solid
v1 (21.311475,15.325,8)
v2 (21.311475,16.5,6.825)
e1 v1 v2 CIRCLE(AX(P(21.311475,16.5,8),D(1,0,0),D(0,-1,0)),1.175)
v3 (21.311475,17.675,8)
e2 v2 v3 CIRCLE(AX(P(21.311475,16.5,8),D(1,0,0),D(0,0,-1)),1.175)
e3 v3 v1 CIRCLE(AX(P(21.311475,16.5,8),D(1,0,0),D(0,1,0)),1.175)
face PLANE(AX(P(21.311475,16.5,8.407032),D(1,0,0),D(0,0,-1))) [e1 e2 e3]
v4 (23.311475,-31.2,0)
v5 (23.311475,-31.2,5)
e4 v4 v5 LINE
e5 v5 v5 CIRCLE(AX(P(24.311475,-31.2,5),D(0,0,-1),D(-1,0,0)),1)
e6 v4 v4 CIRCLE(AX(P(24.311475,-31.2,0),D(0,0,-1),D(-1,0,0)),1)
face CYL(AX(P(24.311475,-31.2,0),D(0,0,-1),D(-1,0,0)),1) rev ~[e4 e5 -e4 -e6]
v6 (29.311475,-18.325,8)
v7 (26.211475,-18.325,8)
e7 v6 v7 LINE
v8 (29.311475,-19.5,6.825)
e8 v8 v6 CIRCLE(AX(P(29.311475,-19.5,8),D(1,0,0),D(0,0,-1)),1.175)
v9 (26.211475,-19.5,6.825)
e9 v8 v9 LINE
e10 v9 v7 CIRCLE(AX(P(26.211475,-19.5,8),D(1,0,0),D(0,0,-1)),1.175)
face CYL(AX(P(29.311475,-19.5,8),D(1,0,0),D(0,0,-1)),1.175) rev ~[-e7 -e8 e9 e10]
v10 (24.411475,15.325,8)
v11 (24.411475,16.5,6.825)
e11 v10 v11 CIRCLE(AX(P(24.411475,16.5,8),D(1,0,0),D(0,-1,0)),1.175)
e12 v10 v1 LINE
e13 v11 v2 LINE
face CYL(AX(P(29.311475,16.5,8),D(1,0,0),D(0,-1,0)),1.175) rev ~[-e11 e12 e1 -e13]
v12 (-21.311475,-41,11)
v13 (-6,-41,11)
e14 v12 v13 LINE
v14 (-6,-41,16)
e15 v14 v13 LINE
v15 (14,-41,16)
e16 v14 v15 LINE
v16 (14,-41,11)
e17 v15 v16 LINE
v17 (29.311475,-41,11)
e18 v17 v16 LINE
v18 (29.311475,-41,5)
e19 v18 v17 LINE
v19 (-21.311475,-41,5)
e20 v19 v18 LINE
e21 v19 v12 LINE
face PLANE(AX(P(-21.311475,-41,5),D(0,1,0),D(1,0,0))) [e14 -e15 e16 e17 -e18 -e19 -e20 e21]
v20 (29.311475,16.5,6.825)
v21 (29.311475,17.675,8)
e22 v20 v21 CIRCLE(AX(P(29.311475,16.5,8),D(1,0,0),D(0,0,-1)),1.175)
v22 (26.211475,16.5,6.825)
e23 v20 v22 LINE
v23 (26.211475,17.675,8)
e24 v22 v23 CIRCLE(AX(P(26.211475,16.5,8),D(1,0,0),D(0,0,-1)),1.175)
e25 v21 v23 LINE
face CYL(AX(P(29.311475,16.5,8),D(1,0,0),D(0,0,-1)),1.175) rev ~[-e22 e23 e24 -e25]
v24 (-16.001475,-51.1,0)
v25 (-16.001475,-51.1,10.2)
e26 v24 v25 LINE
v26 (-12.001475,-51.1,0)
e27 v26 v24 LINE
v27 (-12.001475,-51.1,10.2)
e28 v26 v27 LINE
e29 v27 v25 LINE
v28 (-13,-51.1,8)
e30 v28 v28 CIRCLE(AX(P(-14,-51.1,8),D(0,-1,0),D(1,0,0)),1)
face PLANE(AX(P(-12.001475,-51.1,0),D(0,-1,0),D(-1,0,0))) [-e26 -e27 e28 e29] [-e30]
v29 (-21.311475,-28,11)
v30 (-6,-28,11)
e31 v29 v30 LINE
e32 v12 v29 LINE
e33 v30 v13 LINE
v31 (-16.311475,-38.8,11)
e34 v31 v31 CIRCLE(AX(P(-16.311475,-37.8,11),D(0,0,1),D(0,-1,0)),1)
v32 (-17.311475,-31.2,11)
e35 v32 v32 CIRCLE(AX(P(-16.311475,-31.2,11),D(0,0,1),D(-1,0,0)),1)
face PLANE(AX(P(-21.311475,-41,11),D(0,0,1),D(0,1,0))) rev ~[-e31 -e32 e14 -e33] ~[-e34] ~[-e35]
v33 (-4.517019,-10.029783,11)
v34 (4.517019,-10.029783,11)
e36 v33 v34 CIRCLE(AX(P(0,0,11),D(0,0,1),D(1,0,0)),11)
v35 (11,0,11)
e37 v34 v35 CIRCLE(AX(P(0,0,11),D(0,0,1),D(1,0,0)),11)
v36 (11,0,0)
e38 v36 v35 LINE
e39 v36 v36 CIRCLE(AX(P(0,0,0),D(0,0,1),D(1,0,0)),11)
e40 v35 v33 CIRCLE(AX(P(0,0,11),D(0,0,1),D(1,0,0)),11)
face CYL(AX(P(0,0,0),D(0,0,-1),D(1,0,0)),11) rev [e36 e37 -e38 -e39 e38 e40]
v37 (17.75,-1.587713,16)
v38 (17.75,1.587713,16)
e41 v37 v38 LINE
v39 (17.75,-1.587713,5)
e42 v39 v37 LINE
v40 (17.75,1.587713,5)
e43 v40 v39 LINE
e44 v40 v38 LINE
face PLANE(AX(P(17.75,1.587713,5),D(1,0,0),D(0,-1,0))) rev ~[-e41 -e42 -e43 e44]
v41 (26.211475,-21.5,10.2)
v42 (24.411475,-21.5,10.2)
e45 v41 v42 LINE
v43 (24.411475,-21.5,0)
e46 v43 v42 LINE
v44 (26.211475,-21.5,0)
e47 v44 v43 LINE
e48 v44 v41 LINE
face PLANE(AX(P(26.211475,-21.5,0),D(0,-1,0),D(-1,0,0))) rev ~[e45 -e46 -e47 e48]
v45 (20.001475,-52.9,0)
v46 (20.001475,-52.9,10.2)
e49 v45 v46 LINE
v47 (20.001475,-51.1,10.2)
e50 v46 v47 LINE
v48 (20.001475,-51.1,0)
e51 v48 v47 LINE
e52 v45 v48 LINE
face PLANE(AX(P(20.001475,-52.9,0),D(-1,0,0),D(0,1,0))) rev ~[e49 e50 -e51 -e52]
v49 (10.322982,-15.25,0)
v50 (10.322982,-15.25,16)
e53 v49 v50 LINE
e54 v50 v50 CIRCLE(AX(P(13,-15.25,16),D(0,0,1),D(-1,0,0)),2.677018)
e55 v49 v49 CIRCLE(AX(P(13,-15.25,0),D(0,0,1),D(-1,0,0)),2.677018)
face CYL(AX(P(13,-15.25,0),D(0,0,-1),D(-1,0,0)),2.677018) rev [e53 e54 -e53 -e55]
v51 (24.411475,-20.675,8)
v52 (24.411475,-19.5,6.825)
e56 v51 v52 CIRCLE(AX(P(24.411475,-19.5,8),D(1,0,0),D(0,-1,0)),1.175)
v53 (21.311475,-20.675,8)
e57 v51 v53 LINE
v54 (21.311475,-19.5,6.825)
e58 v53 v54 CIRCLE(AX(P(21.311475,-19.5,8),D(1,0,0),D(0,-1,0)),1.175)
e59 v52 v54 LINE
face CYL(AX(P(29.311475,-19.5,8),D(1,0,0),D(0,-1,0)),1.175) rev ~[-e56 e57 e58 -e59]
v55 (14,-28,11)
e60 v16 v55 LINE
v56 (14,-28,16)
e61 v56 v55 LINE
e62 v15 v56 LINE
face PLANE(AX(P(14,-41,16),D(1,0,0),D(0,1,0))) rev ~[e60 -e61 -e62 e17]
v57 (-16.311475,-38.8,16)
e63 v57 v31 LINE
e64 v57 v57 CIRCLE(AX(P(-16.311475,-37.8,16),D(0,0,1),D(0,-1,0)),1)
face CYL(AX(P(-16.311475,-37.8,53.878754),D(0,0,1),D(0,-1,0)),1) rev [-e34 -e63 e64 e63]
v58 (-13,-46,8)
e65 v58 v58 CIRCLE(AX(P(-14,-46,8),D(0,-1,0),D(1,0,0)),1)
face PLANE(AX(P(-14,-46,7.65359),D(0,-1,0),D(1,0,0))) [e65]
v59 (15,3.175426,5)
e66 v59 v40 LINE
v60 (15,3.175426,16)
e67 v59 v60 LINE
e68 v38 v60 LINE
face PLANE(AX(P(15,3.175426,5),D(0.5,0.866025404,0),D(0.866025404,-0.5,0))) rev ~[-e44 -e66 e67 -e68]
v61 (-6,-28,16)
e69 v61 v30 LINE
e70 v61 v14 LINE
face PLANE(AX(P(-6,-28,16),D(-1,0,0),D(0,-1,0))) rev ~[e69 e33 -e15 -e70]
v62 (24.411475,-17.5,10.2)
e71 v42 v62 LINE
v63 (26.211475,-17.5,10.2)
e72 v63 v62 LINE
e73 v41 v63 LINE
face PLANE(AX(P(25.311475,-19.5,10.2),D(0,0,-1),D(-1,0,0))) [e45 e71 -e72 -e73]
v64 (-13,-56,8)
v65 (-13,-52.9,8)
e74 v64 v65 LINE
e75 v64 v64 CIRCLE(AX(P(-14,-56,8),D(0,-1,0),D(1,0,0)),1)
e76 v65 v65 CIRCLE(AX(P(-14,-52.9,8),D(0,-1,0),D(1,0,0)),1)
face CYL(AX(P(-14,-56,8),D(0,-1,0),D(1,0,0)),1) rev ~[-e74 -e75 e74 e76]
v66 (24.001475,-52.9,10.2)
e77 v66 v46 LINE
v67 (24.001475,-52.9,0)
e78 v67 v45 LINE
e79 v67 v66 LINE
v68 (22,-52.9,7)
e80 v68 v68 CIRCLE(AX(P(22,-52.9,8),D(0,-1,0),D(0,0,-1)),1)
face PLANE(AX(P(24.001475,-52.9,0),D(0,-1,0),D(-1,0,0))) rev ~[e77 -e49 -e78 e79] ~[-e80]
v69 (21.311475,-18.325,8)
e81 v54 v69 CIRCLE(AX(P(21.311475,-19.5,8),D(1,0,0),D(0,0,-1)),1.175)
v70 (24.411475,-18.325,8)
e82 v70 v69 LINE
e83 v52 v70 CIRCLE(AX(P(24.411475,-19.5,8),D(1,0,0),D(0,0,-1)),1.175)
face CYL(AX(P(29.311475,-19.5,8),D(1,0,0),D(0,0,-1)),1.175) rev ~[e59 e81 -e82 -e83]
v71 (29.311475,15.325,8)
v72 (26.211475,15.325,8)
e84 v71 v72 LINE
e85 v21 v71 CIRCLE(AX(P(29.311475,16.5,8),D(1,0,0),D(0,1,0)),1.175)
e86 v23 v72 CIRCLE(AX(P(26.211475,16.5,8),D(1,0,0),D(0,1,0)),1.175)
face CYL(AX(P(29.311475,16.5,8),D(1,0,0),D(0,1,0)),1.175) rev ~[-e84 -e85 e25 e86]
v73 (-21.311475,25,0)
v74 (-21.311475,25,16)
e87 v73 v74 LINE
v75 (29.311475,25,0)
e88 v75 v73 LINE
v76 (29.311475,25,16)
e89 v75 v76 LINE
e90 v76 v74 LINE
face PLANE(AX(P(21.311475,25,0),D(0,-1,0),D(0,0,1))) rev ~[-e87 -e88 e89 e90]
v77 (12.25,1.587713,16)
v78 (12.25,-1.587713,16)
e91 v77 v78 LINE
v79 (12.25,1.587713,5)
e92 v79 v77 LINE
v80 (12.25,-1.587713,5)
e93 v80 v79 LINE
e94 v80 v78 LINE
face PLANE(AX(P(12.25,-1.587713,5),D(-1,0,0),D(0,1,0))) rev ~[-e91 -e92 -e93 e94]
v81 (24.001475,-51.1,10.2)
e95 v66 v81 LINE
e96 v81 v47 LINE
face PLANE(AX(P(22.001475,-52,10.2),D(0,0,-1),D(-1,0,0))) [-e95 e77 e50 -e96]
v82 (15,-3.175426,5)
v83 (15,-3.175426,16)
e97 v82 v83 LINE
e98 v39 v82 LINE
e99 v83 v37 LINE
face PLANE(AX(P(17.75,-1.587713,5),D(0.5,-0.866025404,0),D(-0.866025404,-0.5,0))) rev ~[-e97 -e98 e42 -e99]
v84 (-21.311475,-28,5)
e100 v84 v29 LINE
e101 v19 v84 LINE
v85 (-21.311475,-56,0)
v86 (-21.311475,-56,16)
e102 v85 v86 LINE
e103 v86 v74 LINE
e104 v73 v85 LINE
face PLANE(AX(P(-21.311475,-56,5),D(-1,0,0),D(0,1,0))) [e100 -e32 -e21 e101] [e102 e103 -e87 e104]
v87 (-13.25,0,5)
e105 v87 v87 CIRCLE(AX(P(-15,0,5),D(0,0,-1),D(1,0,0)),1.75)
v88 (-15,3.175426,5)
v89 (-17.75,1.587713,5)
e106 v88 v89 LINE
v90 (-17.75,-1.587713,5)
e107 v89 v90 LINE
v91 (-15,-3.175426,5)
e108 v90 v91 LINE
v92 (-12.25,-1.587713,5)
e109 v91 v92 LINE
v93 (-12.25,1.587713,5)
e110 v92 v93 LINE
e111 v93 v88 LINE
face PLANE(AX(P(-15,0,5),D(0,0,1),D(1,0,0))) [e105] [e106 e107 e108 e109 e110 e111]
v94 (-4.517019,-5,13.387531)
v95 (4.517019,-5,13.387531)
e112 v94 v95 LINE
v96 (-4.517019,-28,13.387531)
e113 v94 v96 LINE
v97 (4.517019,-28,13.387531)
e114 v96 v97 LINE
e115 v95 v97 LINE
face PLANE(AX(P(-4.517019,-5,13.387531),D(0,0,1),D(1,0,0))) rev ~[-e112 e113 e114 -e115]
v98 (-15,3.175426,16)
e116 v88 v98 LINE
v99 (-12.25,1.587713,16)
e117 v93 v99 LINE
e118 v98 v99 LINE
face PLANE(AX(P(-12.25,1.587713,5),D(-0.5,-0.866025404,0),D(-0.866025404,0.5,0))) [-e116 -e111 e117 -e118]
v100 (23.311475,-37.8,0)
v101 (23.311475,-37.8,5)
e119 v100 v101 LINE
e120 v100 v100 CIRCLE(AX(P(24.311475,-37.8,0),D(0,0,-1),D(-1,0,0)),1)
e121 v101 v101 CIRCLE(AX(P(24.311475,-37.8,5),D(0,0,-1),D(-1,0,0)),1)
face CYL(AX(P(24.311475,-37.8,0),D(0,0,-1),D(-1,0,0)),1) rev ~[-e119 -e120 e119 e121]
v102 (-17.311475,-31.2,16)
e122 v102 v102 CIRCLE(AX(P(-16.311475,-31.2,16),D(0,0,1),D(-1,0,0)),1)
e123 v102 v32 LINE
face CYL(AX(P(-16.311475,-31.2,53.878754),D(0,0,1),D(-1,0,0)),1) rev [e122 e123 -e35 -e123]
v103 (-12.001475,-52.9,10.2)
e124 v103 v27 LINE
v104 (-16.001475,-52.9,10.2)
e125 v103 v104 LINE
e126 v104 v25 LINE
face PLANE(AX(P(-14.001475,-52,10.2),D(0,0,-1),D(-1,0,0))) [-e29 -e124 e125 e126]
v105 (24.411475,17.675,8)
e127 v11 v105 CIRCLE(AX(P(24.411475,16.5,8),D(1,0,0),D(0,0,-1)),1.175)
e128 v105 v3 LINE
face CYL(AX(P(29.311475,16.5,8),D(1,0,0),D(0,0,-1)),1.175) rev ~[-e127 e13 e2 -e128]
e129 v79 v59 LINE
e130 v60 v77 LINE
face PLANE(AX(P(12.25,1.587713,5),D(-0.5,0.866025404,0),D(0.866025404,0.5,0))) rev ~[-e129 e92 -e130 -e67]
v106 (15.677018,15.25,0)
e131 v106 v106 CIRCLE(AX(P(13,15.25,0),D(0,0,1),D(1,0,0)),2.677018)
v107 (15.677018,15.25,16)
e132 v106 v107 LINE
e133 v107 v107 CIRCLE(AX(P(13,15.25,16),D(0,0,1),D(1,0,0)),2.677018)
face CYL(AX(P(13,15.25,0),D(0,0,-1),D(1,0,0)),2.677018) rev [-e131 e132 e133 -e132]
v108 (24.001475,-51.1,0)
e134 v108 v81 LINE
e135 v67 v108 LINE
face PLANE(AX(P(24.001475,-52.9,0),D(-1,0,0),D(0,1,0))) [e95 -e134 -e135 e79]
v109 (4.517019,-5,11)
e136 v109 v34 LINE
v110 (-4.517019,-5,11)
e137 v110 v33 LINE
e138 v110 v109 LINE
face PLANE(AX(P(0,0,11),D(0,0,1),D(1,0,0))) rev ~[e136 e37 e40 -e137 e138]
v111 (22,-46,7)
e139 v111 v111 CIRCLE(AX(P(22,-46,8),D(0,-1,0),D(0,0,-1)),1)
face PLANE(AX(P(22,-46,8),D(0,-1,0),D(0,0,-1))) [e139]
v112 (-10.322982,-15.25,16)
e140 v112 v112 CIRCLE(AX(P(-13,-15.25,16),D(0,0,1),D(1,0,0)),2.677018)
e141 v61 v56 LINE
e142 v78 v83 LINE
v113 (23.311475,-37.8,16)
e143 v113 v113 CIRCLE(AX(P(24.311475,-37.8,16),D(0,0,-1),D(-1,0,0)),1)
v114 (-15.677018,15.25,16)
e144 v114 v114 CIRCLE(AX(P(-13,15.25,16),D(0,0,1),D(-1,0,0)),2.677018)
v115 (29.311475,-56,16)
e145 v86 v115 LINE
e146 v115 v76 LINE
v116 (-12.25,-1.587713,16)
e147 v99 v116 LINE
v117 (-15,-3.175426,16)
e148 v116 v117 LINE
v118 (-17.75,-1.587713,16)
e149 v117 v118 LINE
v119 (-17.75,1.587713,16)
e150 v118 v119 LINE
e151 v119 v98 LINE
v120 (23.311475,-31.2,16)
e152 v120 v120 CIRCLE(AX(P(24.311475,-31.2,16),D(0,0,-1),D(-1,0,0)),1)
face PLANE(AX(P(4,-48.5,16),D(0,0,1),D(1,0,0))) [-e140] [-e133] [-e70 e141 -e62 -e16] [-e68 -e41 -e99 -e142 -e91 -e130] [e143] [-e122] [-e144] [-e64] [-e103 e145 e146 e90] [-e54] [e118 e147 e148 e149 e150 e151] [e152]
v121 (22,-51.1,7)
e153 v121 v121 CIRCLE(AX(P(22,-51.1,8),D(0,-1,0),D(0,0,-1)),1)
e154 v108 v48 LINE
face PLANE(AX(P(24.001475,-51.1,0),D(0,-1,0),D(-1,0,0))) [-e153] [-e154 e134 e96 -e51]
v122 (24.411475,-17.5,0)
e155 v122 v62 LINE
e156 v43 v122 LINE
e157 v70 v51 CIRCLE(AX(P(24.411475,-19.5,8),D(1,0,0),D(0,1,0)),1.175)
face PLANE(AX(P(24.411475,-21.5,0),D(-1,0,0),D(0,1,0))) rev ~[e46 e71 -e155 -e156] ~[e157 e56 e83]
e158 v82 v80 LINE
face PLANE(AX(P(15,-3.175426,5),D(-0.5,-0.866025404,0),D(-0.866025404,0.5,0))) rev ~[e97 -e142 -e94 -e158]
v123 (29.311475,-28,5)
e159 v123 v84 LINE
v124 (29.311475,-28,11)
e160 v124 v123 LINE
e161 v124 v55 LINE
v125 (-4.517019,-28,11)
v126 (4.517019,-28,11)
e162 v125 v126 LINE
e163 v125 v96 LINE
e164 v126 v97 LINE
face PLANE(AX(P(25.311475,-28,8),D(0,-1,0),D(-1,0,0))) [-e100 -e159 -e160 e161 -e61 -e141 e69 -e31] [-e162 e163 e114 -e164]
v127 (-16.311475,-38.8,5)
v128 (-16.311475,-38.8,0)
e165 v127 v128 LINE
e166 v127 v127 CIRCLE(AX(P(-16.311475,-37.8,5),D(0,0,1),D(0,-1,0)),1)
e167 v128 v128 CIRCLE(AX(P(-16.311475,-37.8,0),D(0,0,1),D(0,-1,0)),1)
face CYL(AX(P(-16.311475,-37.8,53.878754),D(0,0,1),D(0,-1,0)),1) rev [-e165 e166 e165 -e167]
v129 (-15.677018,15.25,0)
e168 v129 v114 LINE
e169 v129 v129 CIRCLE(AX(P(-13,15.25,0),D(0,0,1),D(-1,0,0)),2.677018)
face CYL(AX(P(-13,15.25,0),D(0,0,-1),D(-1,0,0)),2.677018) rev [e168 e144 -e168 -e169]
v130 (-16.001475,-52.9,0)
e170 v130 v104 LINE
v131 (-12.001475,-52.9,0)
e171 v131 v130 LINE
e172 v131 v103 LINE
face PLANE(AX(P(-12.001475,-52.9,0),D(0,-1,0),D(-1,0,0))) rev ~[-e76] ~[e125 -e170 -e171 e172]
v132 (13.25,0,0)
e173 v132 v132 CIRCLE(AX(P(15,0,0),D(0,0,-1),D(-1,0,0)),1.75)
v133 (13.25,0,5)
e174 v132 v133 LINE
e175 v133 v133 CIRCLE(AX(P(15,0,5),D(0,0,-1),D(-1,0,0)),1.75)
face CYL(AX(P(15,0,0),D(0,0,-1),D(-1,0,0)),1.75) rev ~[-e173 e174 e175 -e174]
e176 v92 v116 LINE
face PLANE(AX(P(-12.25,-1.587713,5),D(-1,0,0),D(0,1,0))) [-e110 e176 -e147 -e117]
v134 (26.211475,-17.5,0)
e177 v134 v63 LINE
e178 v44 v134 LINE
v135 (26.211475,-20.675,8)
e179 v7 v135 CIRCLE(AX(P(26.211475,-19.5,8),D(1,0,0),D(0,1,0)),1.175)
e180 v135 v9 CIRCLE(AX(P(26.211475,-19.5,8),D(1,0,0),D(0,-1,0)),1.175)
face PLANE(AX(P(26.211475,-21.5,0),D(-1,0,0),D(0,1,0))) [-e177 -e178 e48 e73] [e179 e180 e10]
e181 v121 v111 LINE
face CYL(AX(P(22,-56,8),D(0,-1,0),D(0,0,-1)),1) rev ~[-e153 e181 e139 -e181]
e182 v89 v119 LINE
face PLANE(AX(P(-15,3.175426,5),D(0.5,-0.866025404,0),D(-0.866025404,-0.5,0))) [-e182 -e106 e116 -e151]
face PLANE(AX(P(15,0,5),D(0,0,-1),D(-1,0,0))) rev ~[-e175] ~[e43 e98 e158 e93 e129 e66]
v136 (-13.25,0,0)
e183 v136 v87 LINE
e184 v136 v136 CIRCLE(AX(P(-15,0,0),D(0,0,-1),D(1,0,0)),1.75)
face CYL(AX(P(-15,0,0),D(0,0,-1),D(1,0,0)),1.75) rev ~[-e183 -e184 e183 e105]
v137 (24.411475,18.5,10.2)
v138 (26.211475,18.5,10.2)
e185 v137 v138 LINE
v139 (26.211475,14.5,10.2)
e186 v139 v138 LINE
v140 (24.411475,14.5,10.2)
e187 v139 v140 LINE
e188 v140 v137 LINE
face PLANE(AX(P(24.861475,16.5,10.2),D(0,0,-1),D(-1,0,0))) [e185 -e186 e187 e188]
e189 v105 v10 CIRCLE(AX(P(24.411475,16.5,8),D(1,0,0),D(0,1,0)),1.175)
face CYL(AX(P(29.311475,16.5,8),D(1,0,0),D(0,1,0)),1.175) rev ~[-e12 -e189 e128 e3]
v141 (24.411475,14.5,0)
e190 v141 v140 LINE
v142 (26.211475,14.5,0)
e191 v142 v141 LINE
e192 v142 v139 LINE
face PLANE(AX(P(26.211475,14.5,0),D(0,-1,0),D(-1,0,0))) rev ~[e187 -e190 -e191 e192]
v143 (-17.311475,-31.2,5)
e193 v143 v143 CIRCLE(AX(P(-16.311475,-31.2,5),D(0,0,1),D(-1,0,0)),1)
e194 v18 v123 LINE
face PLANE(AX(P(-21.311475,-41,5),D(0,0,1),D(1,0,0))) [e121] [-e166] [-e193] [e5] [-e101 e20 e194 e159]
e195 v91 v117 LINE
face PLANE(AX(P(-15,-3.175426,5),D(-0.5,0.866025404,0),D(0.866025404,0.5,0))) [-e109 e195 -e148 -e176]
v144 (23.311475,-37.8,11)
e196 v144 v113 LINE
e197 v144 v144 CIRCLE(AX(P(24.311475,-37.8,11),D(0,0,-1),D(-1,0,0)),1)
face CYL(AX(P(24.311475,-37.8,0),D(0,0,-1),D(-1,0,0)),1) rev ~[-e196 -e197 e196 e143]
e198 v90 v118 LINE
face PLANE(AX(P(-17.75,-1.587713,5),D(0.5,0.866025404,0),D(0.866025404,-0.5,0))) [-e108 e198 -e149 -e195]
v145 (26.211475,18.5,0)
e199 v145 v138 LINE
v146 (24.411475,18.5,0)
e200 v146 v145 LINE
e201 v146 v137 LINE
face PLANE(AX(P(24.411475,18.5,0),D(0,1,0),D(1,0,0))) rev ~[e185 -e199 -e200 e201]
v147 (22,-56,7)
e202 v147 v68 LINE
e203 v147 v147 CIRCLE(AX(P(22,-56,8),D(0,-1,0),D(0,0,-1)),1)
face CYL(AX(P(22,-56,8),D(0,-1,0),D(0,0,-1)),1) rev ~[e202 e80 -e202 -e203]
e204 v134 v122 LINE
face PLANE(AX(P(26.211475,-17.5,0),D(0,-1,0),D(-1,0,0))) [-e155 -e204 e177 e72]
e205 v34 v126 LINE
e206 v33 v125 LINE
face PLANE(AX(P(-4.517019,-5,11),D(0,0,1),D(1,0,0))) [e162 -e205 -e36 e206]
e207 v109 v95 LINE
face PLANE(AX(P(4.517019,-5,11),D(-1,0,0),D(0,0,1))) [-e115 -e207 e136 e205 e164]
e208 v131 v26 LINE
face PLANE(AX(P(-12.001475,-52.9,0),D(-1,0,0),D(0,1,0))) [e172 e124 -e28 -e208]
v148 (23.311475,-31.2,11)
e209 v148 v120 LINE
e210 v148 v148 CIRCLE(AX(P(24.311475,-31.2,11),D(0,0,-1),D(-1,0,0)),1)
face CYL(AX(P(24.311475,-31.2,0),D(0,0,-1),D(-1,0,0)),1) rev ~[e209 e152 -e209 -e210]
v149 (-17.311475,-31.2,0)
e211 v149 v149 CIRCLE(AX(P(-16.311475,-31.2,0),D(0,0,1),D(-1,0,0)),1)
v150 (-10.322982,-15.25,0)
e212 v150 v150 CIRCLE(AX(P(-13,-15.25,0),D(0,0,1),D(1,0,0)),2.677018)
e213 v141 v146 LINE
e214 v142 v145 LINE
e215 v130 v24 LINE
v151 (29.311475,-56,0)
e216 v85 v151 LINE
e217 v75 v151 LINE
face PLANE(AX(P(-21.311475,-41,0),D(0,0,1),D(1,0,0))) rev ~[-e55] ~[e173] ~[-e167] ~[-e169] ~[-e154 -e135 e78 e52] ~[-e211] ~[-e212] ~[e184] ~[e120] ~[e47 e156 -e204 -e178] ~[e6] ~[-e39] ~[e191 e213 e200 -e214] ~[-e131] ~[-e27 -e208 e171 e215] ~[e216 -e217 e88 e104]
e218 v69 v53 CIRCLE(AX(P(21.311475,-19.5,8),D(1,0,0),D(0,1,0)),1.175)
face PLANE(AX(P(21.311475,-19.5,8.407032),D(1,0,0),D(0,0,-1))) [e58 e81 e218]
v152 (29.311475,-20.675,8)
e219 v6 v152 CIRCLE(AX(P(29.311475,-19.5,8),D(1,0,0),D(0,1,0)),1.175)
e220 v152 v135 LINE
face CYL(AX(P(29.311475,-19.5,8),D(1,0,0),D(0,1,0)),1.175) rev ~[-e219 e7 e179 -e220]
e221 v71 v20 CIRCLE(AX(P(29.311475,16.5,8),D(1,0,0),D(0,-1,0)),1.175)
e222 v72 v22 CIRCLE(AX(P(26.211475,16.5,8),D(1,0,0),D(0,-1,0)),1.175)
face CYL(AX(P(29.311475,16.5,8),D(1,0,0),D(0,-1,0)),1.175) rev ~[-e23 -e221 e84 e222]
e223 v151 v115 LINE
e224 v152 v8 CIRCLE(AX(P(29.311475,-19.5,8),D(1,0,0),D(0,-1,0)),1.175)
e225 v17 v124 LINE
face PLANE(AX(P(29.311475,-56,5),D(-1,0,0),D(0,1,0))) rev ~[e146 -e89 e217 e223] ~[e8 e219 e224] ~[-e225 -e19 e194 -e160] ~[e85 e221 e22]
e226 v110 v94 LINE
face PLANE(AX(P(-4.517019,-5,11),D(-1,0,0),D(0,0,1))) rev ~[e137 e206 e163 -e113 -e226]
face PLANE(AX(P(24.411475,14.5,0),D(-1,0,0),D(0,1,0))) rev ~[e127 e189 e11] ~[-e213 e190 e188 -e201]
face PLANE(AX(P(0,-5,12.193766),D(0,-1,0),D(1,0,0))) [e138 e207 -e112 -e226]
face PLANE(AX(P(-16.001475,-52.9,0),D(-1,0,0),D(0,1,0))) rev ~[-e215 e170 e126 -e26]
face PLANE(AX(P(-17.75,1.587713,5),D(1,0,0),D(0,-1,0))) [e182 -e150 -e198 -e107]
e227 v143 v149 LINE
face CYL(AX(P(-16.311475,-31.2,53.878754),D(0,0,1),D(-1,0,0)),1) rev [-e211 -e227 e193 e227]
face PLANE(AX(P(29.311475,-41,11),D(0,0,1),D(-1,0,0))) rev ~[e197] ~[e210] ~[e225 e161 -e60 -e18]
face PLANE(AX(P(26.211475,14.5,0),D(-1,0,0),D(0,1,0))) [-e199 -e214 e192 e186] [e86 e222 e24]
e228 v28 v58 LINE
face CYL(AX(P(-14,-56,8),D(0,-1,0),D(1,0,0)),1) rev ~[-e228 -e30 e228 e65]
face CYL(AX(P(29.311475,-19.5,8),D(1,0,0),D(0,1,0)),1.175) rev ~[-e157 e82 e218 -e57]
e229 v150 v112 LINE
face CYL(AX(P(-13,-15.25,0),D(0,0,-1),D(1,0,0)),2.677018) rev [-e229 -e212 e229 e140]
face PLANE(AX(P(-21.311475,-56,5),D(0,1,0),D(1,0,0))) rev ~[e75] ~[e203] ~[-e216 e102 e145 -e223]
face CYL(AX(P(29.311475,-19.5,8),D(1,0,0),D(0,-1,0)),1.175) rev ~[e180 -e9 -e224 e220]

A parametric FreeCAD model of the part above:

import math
import FreeCAD as App
import Part
import Sketcher

V = App.Vector
Q = App.Units.Quantity


def add_polygon(sketch, points):
    """Adds a closed chain of lines whose ends are joined by coincident constraints."""
    first, n = sketch.GeometryCount, len(points)
    for a, b in zip(points, points[1:] + points[:1]):
        sketch.addGeometry(Part.LineSegment(App.Vector(*a, 0), App.Vector(*b, 0)), False)
    for i in range(n):
        sketch.addConstraint(Sketcher.Constraint("Coincident", first + i, 2, first + (i + 1) % n, 1))

doc = App.newDocument("Part")
body = doc.addObject("PartDesign::Body", "Body")

sketch1 = body.newObject("Sketcher::SketchObject", "Sketch")
sketch1.AttachmentSupport = (doc.getObject("XY_Plane"), [""])
sketch1.MapMode = "FlatFace"
add_polygon(sketch1, [(-21.311475, 25), (-21.311475, -25), (21.311475, -25), (21.311475, 25)])
sketch1.addGeometry(Part.Circle(V(-13, -15.25, 0), V(0, 0, 1), 2.677018), False)
sketch1.addGeometry(Part.Circle(V(13, -15.25, 0), V(0, 0, 1), 2.677018), False)
sketch1.addGeometry(Part.Circle(V(-13, 15.25, 0), V(0, 0, 1), 2.677018), False)
sketch1.addGeometry(Part.Circle(V(13, 15.25, 0), V(0, 0, 1), 2.677018), False)
sketch1.addConstraint(Sketcher.Constraint("Vertical", 0))
sketch1.addConstraint(Sketcher.Constraint("Horizontal", 1))
sketch1.addConstraint(Sketcher.Constraint("Vertical", 2))
sketch1.addConstraint(Sketcher.Constraint("Horizontal", 3))
sketch1.addConstraint(Sketcher.Constraint("Equal", 4, 5))
sketch1.addConstraint(Sketcher.Constraint("Equal", 5, 6))
sketch1.addConstraint(Sketcher.Constraint("Equal", 6, 7))
sketch1.addConstraint(Sketcher.Constraint("Symmetric", 5, 3, 6, 3, -1, 1))
sketch1.addConstraint(Sketcher.Constraint("Symmetric", 4, 3, 7, 3, -1, 1))
sketch1.addConstraint(Sketcher.Constraint("Symmetric", 0, 2, 2, 2, -1, 1))
sketch1.addConstraint(Sketcher.Constraint("Symmetric", 4, 3, 5, 3, -2))
sketch1.addConstraint(Sketcher.Constraint("DistanceY", 0, 2, 0, 1, Q("50 mm")))
sketch1.addConstraint(Sketcher.Constraint("DistanceX", 4, 3, -1, 1, Q("13 mm")))
sketch1.addConstraint(Sketcher.Constraint("DistanceY", 4, 3, 6, 3, Q("30.5 mm")))
sketch1.addConstraint(Sketcher.Constraint("Diameter", 4, Q("5.354036 mm")))
sketch1.addConstraint(Sketcher.Constraint("DistanceX", 1, 1, 1, 2, Q("42.622951 mm")))
pad1 = body.newObject("PartDesign::Pad", "Pad")
pad1.Profile = sketch1
pad1.Length = 16

sketch2 = body.newObject("Sketcher::SketchObject", "Sketch001")
sketch2.AttachmentSupport = (doc.getObject("XY_Plane"), [""])
sketch2.MapMode = "FlatFace"
sketch2.addGeometry(Part.Circle(V(0, 0, 0), V(0, 0, 1), 11), False)
sketch2.addConstraint(Sketcher.Constraint("Coincident", 0, 3, -1, 1))
sketch2.addConstraint(Sketcher.Constraint("Diameter", 0, Q("22 mm")))
pocket1 = body.newObject("PartDesign::Pocket", "Pocket")
pocket1.Profile = sketch2
pocket1.Length = 11
pocket1.Reversed = True

sketch3 = body.newObject("Sketcher::SketchObject", "Sketch002")
sketch3.AttachmentSupport = (doc.getObject("XY_Plane"), [""])
sketch3.MapMode = "FlatFace"
sketch3.addGeometry(Part.Circle(V(15, 0, 0), V(0, 0, 1), 1.75), False)
sketch3.addGeometry(Part.Circle(V(-15, 0, 0), V(0, 0, 1), 1.75), False)
sketch3.addConstraint(Sketcher.Constraint("Equal", 0, 1))
sketch3.addConstraint(Sketcher.Constraint("Symmetric", 0, 3, 1, 3, -1, 1))
sketch3.addConstraint(Sketcher.Constraint("PointOnObject", 0, 3, -1))
sketch3.addConstraint(Sketcher.Constraint("Diameter", 0, Q("3.5 mm")))
sketch3.addConstraint(Sketcher.Constraint("DistanceX", -1, 1, 0, 3, Q("15 mm")))
pocket2 = body.newObject("PartDesign::Pocket", "Pocket001")
pocket2.Profile = sketch3
pocket2.Length = 10
pocket2.Reversed = True

sketch4 = body.newObject("Sketcher::SketchObject", "Sketch003")
sketch4.AttachmentSupport = (doc.getObject("XY_Plane"), [""])
sketch4.MapMode = "FlatFace"
sketch4.AttachmentOffset = App.Placement(V(0, 0, 5), App.Rotation())
add_polygon(sketch4, [(15, 3.175426), (17.75, 1.587713), (17.75, -1.587713), (15, -3.175426), (12.25, -1.587713), (12.25, 1.587713)])
add_polygon(sketch4, [(-15, 3.175426), (-12.25, 1.587713), (-12.25, -1.587713), (-15, -3.175426), (-17.75, -1.587713), (-17.75, 1.587713)])
sketch4.addConstraint(Sketcher.Constraint("Vertical", 1))
sketch4.addConstraint(Sketcher.Constraint("Vertical", 4))
sketch4.addConstraint(Sketcher.Constraint("Vertical", 7))
sketch4.addConstraint(Sketcher.Constraint("Vertical", 10))
sketch4.addConstraint(Sketcher.Constraint("Symmetric", 3, 2, 6, 2, -1, 1))
sketch4.addConstraint(Sketcher.Constraint("Symmetric", 5, 2, 8, 2, -1, 1))
sketch4.addConstraint(Sketcher.Constraint("Symmetric", 0, 2, 9, 2, -1, 1))
sketch4.addConstraint(Sketcher.Constraint("Symmetric", 2, 2, 11, 2, -1, 1))
sketch4.addConstraint(Sketcher.Constraint("Symmetric", 2, 2, 8, 2, -2))
sketch4.addConstraint(Sketcher.Constraint("Parallel", 0, 3))
sketch4.addConstraint(Sketcher.Constraint("Parallel", 2, 5))
sketch4.addConstraint(Sketcher.Constraint("Parallel", 5, 8))
sketch4.addConstraint(Sketcher.Constraint("Parallel", 8, 11))
sketch4.addConstraint(Sketcher.Constraint("Horizontal", 1, 2, 3, 2))
sketch4.addConstraint(Sketcher.Constraint("Horizontal", 0, 2, 4, 2))
sketch4.addConstraint(Sketcher.Constraint("Angle", 0, Q("-30 deg")))
sketch4.addConstraint(Sketcher.Constraint("DistanceX", -1, 1, 2, 2, Q("15 mm")))
sketch4.addConstraint(Sketcher.Constraint("DistanceX", 3, 2, 1, 2, Q("5.5 mm")))
sketch4.addConstraint(Sketcher.Constraint("DistanceY", 1, 2, 1, 1, Q("3.175426 mm")))
pocket3 = body.newObject("PartDesign::Pocket", "Pocket002")
pocket3.Profile = sketch4
pocket3.Type = "ThroughAll"
pocket3.Reversed = True

sketch5 = body.newObject("Sketcher::SketchObject", "Sketch004")
sketch5.AttachmentSupport = (doc.getObject("XY_Plane"), [""])
sketch5.MapMode = "FlatFace"
add_polygon(sketch5, [(-21.311475, -25), (-21.311475, -41), (21.311475, -41), (21.311475, -25)])
sketch5.addConstraint(Sketcher.Constraint("Vertical", 0))
sketch5.addConstraint(Sketcher.Constraint("Horizontal", 1))
sketch5.addConstraint(Sketcher.Constraint("Vertical", 2))
sketch5.addConstraint(Sketcher.Constraint("Horizontal", 3))
sketch5.addConstraint(Sketcher.Constraint("DistanceY", 0, 2, 0, 1, Q("16 mm")))
sketch5.addConstraint(Sketcher.Constraint("DistanceY", 0, 2, -1, 1, Q("41 mm")))
sketch5.addConstraint(Sketcher.Constraint("DistanceX", 1, 1, 1, 2, Q("42.622951 mm")))
sketch5.addConstraint(Sketcher.Constraint("DistanceX", 0, 2, -1, 1, Q("21.311475 mm")))
pad2 = body.newObject("PartDesign::Pad", "Pad001")
pad2.Profile = sketch5
pad2.Length = 16

sketch6 = body.newObject("Sketcher::SketchObject", "Sketch005")
sketch6.AttachmentSupport = (doc.getObject("YZ_Plane"), [""])
sketch6.MapMode = "FlatFace"
sketch6.AttachmentOffset = App.Placement(V(0, 0, -21.311475), App.Rotation())
add_polygon(sketch6, [(-28, 5), (-41, 5), (-41, 11), (-28, 11)])
sketch6.addConstraint(Sketcher.Constraint("Horizontal", 0))
sketch6.addConstraint(Sketcher.Constraint("Vertical", 1))
sketch6.addConstraint(Sketcher.Constraint("Horizontal", 2))
sketch6.addConstraint(Sketcher.Constraint("Vertical", 3))
sketch6.addConstraint(Sketcher.Constraint("DistanceX", 0, 2, 0, 1, Q("13 mm")))
sketch6.addConstraint(Sketcher.Constraint("DistanceY", 1, 1, 1, 2, Q("6 mm")))
sketch6.addConstraint(Sketcher.Constraint("DistanceX", 0, 2, -1, 1, Q("41 mm")))
sketch6.addConstraint(Sketcher.Constraint("DistanceY", -1, 1, 0, 2, Q("5 mm")))
pocket4 = body.newObject("PartDesign::Pocket", "Pocket003")
pocket4.Profile = sketch6
pocket4.Type = "ThroughAll"
pocket4.Reversed = True

sketch7 = body.newObject("Sketcher::SketchObject", "Sketch006")
sketch7.AttachmentSupport = (doc.getObject("YZ_Plane"), [""])
sketch7.MapMode = "FlatFace"
sketch7.AttachmentOffset = App.Placement(V(0, 0, 21.311475), App.Rotation())
add_polygon(sketch7, [(25, 16), (-28, 16), (-28, 0), (25, 0)])
sketch7.addConstraint(Sketcher.Constraint("Horizontal", 0))
sketch7.addConstraint(Sketcher.Constraint("Vertical", 1))
sketch7.addConstraint(Sketcher.Constraint("Horizontal", 2))
sketch7.addConstraint(Sketcher.Constraint("Vertical", 3))
sketch7.addConstraint(Sketcher.Constraint("PointOnObject", 1, 2, -1))
sketch7.addConstraint(Sketcher.Constraint("DistanceX", 0, 2, 0, 1, Q("53 mm")))
sketch7.addConstraint(Sketcher.Constraint("DistanceY", 1, 2, 1, 1, Q("16 mm")))
sketch7.addConstraint(Sketcher.Constraint("DistanceX", 0, 2, -1, 1, Q("28 mm")))
pad3 = body.newObject("PartDesign::Pad", "Pad002")
pad3.Profile = sketch7
pad3.Length = 8

sketch8 = body.newObject("Sketcher::SketchObject", "Sketch007")
sketch8.AttachmentSupport = (doc.getObject("YZ_Plane"), [""])
sketch8.MapMode = "FlatFace"
sketch8.AttachmentOffset = App.Placement(V(0, 0, 29.311475), App.Rotation())
sketch8.addGeometry(Part.ArcOfCircle(Part.Circle(V(16.5, 8, 0), V(0, 0, 1), 1.175), math.radians(0), math.radians(180)), False)
sketch8.addGeometry(Part.ArcOfCircle(Part.Circle(V(16.5, 8, 0), V(0, 0, 1), 1.175), math.radians(180), math.radians(270)), False)
sketch8.addGeometry(Part.ArcOfCircle(Part.Circle(V(16.5, 8, 0), V(0, 0, 1), 1.175), math.radians(-90), math.radians(0)), False)
sketch8.addGeometry(Part.ArcOfCircle(Part.Circle(V(-19.5, 8, 0), V(0, 0, 1), 1.175), math.radians(0), math.radians(180)), False)
sketch8.addGeometry(Part.ArcOfCircle(Part.Circle(V(-19.5, 8, 0), V(0, 0, 1), 1.175), math.radians(180), math.radians(270)), False)
sketch8.addGeometry(Part.ArcOfCircle(Part.Circle(V(-19.5, 8, 0), V(0, 0, 1), 1.175), math.radians(-90), math.radians(0)), False)
sketch8.addConstraint(Sketcher.Constraint("Tangent", 0, 2, 1, 1))
sketch8.addConstraint(Sketcher.Constraint("Tangent", 1, 2, 2, 1))
sketch8.addConstraint(Sketcher.Constraint("Tangent", 2, 2, 0, 1))
sketch8.addConstraint(Sketcher.Constraint("Tangent", 3, 2, 4, 1))
sketch8.addConstraint(Sketcher.Constraint("Tangent", 4, 2, 5, 1))
sketch8.addConstraint(Sketcher.Constraint("Tangent", 5, 2, 3, 1))
sketch8.addConstraint(Sketcher.Constraint("Equal", 2, 3))
sketch8.addConstraint(Sketcher.Constraint("Horizontal", 2, 3, 3, 3))
sketch8.addConstraint(Sketcher.Constraint("Horizontal", 5, 3, 0, 2))
sketch8.addConstraint(Sketcher.Constraint("Horizontal", 0, 2, 2, 2))
sketch8.addConstraint(Sketcher.Constraint("Horizontal", 2, 2, 3, 2))
sketch8.addConstraint(Sketcher.Constraint("Horizontal", 3, 2, 5, 2))
sketch8.addConstraint(Sketcher.Constraint("Vertical", 2, 3, 1, 2))
sketch8.addConstraint(Sketcher.Constraint("Vertical", 5, 3, 4, 2))
sketch8.addConstraint(Sketcher.Constraint("DistanceY", -1, 1, 0, 3, Q("8 mm")))
sketch8.addConstraint(Sketcher.Constraint("Radius", 0, Q("1.175 mm")))
sketch8.addConstraint(Sketcher.Constraint("DistanceX", 3, 3, 0, 3, Q("36 mm")))
sketch8.addConstraint(Sketcher.Constraint("DistanceX", -1, 1, 0, 3, Q("16.5 mm")))
pocket5 = body.newObject("PartDesign::Pocket", "Pocket004")
pocket5.Profile = sketch8
pocket5.Length = 8

sketch9 = body.newObject("Sketcher::SketchObject", "Sketch008")
sketch9.AttachmentSupport = (doc.getObject("XY_Plane"), [""])
sketch9.MapMode = "FlatFace"
add_polygon(sketch9, [(24.411475, 14.5), (24.411475, 18.5), (26.211475, 18.5), (26.211475, 14.5)])
add_polygon(sketch9, [(26.211475, -17.5), (26.211475, -21.5), (24.411475, -21.5), (24.411475, -17.5)])
sketch9.addConstraint(Sketcher.Constraint("Vertical", 0))
sketch9.addConstraint(Sketcher.Constraint("Horizontal", 1))
sketch9.addConstraint(Sketcher.Constraint("Vertical", 2))
sketch9.addConstraint(Sketcher.Constraint("Horizontal", 3))
sketch9.addConstraint(Sketcher.Constraint("Vertical", 4))
sketch9.addConstraint(Sketcher.Constraint("Horizontal", 5))
sketch9.addConstraint(Sketcher.Constraint("Vertical", 6))
sketch9.addConstraint(Sketcher.Constraint("Horizontal", 7))
sketch9.addConstraint(Sketcher.Constraint("Vertical", 2, 2, 4, 2))
sketch9.addConstraint(Sketcher.Constraint("Vertical", 3, 2, 5, 2))
sketch9.addConstraint(Sketcher.Constraint("Equal", 2, 4))
sketch9.addConstraint(Sketcher.Constraint("DistanceY", 0, 1, 0, 2, Q("4 mm")))
sketch9.addConstraint(Sketcher.Constraint("DistanceX", 1, 1, 1, 2, Q("1.8 mm")))
sketch9.addConstraint(Sketcher.Constraint("DistanceY", 4, 2, 2, 2, Q("36 mm")))
sketch9.addConstraint(Sketcher.Constraint("DistanceY", -1, 1, 0, 2, Q("18.5 mm")))
sketch9.addConstraint(Sketcher.Constraint("DistanceX", -1, 1, 0, 2, Q("24.411475 mm")))
pocket6 = body.newObject("PartDesign::Pocket", "Pocket005")
pocket6.Profile = sketch9
pocket6.Length = 10.2
pocket6.Reversed = True

sketch10 = body.newObject("Sketcher::SketchObject", "Sketch009")
sketch10.AttachmentSupport = (doc.getObject("XY_Plane"), [""])
sketch10.MapMode = "FlatFace"
sketch10.addGeometry(Part.Circle(V(-16.311475, -37.8, 0), V(0, 0, 1), 1), False)
sketch10.addGeometry(Part.Circle(V(-16.311475, -31.2, 0), V(0, 0, 1), 1), False)
sketch10.addConstraint(Sketcher.Constraint("Equal", 0, 1))
sketch10.addConstraint(Sketcher.Constraint("Vertical", 0, 3, 1, 3))
sketch10.addConstraint(Sketcher.Constraint("Diameter", 0, Q("2 mm")))
sketch10.addConstraint(Sketcher.Constraint("DistanceY", 0, 3, -1, 1, Q("37.8 mm")))
sketch10.addConstraint(Sketcher.Constraint("DistanceY", 1, 3, -1, 1, Q("31.2 mm")))
sketch10.addConstraint(Sketcher.Constraint("DistanceX", 0, 3, -1, 1, Q("16.311475 mm")))
pocket7 = body.newObject("PartDesign::Pocket", "Pocket006")
pocket7.Profile = sketch10
pocket7.Type = "ThroughAll"
pocket7.Midplane = True

sketch11 = body.newObject("Sketcher::SketchObject", "Sketch010")
sketch11.AttachmentSupport = (doc.getObject("XZ_Plane"), [""])
sketch11.MapMode = "FlatFace"
sketch11.AttachmentOffset = App.Placement(V(0, 0, 25), App.Rotation())
add_polygon(sketch11, [(-4.517019, 13.387531), (-4.517019, 11), (4.517019, 11), (4.517019, 13.387531)])
sketch11.addConstraint(Sketcher.Constraint("Vertical", 0))
sketch11.addConstraint(Sketcher.Constraint("Horizontal", 1))
sketch11.addConstraint(Sketcher.Constraint("Vertical", 2))
sketch11.addConstraint(Sketcher.Constraint("Horizontal", 3))
sketch11.addConstraint(Sketcher.Constraint("DistanceY", -1, 1, 0, 2, Q("11 mm")))
sketch11.addConstraint(Sketcher.Constraint("DistanceY", 0, 2, 0, 1, Q("2.387531 mm")))
sketch11.addConstraint(Sketcher.Constraint("DistanceX", 1, 1, 1, 2, Q("9.034038 mm")))
sketch11.addConstraint(Sketcher.Constraint("DistanceX", 0, 2, -1, 1, Q("4.517019 mm")))
pocket8 = body.newObject("PartDesign::Pocket", "Pocket007")
pocket8.Profile = sketch11
pocket8.Type = "TwoLengths"
pocket8.Length = 61.126222
pocket8.Length2 = 20
pocket8.Reversed = True

sketch12 = body.newObject("Sketcher::SketchObject", "Sketch011")
sketch12.AttachmentSupport = (doc.getObject("XZ_Plane"), [""])
sketch12.MapMode = "FlatFace"
sketch12.AttachmentOffset = App.Placement(V(0, 0, 28), App.Rotation())
add_polygon(sketch12, [(29.311475, 0), (29.311475, 16), (21.311475, 16), (21.311475, 0)])
sketch12.addConstraint(Sketcher.Constraint("Vertical", 0))
sketch12.addConstraint(Sketcher.Constraint("Horizontal", 1))
sketch12.addConstraint(Sketcher.Constraint("Vertical", 2))
sketch12.addConstraint(Sketcher.Constraint("Horizontal", 3))
sketch12.addConstraint(Sketcher.Constraint("PointOnObject", 2, 2, -1))
sketch12.addConstraint(Sketcher.Constraint("DistanceX", 1, 2, 1, 1, Q("8 mm")))
sketch12.addConstraint(Sketcher.Constraint("DistanceY", 0, 1, 0, 2, Q("16 mm")))
sketch12.addConstraint(Sketcher.Constraint("DistanceX", -1, 1, 0, 2, Q("29.311475 mm")))
pad4 = body.newObject("PartDesign::Pad", "Pad003")
pad4.Profile = sketch12
pad4.Length = 13

sketch13 = body.newObject("Sketcher::SketchObject", "Sketch012")
sketch13.AttachmentSupport = (doc.getObject("XZ_Plane"), [""])
sketch13.MapMode = "FlatFace"
sketch13.AttachmentOffset = App.Placement(V(0, 0, 41), App.Rotation())
add_polygon(sketch13, [(29.311475, 5), (29.311475, 11), (21.311475, 11), (21.311475, 5)])
sketch13.addConstraint(Sketcher.Constraint("Vertical", 0))
sketch13.addConstraint(Sketcher.Constraint("Horizontal", 1))
sketch13.addConstraint(Sketcher.Constraint("Vertical", 2))
sketch13.addConstraint(Sketcher.Constraint("Horizontal", 3))
sketch13.addConstraint(Sketcher.Constraint("DistanceX", 1, 2, 1, 1, Q("8 mm")))
sketch13.addConstraint(Sketcher.Constraint("DistanceY", 0, 1, 0, 2, Q("6 mm")))
sketch13.addConstraint(Sketcher.Constraint("DistanceY", -1, 1, 0, 2, Q("11 mm")))
sketch13.addConstraint(Sketcher.Constraint("DistanceX", -1, 1, 0, 2, Q("29.311475 mm")))
pocket9 = body.newObject("PartDesign::Pocket", "Pocket008")
pocket9.Profile = sketch13
pocket9.Length = 13

sketch14 = body.newObject("Sketcher::SketchObject", "Sketch013")
sketch14.AttachmentSupport = (doc.getObject("XY_Plane"), [""])
sketch14.MapMode = "FlatFace"
sketch14.addGeometry(Part.Circle(V(24.311475, -37.8, 0), V(0, 0, 1), 1), False)
sketch14.addGeometry(Part.Circle(V(24.311475, -31.2, 0), V(0, 0, 1), 1), False)
sketch14.addConstraint(Sketcher.Constraint("Equal", 0, 1))
sketch14.addConstraint(Sketcher.Constraint("Vertical", 0, 3, 1, 3))
sketch14.addConstraint(Sketcher.Constraint("Diameter", 0, Q("2 mm")))
sketch14.addConstraint(Sketcher.Constraint("DistanceY", 0, 3, -1, 1, Q("37.8 mm")))
sketch14.addConstraint(Sketcher.Constraint("DistanceY", 1, 3, -1, 1, Q("31.2 mm")))
sketch14.addConstraint(Sketcher.Constraint("DistanceX", -1, 1, 0, 3, Q("24.311475 mm")))
pocket10 = body.newObject("PartDesign::Pocket", "Pocket009")
pocket10.Profile = sketch14
pocket10.Type = "ThroughAll"
pocket10.Reversed = True

sketch15 = body.newObject("Sketcher::SketchObject", "Sketch014")
sketch15.AttachmentSupport = (doc.getObject("XZ_Plane"), [""])
sketch15.MapMode = "FlatFace"
sketch15.AttachmentOffset = App.Placement(V(0, 0, 41), App.Rotation())
add_polygon(sketch15, [(-21.311475, 5), (-21.311475, 0), (29.311475, 0), (29.311475, 5)])
sketch15.addConstraint(Sketcher.Constraint("Vertical", 0))
sketch15.addConstraint(Sketcher.Constraint("Horizontal", 1))
sketch15.addConstraint(Sketcher.Constraint("Vertical", 2))
sketch15.addConstraint(Sketcher.Constraint("Horizontal", 3))
sketch15.addConstraint(Sketcher.Constraint("PointOnObject", 0, 2, -1))
sketch15.addConstraint(Sketcher.Constraint("DistanceY", 0, 2, 0, 1, Q("5 mm")))
sketch15.addConstraint(Sketcher.Constraint("DistanceX", 1, 1, 1, 2, Q("50.622951 mm")))
sketch15.addConstraint(Sketcher.Constraint("DistanceX", 0, 2, -1, 1, Q("21.311475 mm")))
pad5 = body.newObject("PartDesign::Pad", "Pad004")
pad5.Profile = sketch15
pad5.Length = 15

sketch16 = body.newObject("Sketcher::SketchObject", "Sketch015")
sketch16.AttachmentSupport = (doc.getObject("XY_Plane"), [""])
sketch16.MapMode = "FlatFace"
sketch16.AttachmentOffset = App.Placement(V(0, 0, 5), App.Rotation())
add_polygon(sketch16, [(-21.311475, -41), (-21.311475, -56), (29.311475, -56), (29.311475, -41)])
sketch16.addConstraint(Sketcher.Constraint("Vertical", 0))
sketch16.addConstraint(Sketcher.Constraint("Horizontal", 1))
sketch16.addConstraint(Sketcher.Constraint("Vertical", 2))
sketch16.addConstraint(Sketcher.Constraint("Horizontal", 3))
sketch16.addConstraint(Sketcher.Constraint("DistanceY", 0, 2, 0, 1, Q("15 mm")))
sketch16.addConstraint(Sketcher.Constraint("DistanceY", 0, 2, -1, 1, Q("56 mm")))
sketch16.addConstraint(Sketcher.Constraint("DistanceX", 1, 1, 1, 2, Q("50.622951 mm")))
sketch16.addConstraint(Sketcher.Constraint("DistanceX", 0, 2, -1, 1, Q("21.311475 mm")))
pad6 = body.newObject("PartDesign::Pad", "Pad005")
pad6.Profile = sketch16
pad6.Length = 11

sketch17 = body.newObject("Sketcher::SketchObject", "Sketch016")
sketch17.AttachmentSupport = (doc.getObject("XZ_Plane"), [""])
sketch17.MapMode = "FlatFace"
sketch17.AttachmentOffset = App.Placement(V(0, 0, 56), App.Rotation())
sketch17.addGeometry(Part.Circle(V(-14, 8, 0), V(0, 0, 1), 1), False)
sketch17.addGeometry(Part.Circle(V(22, 8, 0), V(0, 0, 1), 1), False)
sketch17.addConstraint(Sketcher.Constraint("Equal", 0, 1))
sketch17.addConstraint(Sketcher.Constraint("Horizontal", 0, 3, 1, 3))
sketch17.addConstraint(Sketcher.Constraint("Diameter", 0, Q("2 mm")))
sketch17.addConstraint(Sketcher.Constraint("DistanceX", 0, 3, -1, 1, Q("14 mm")))
sketch17.addConstraint(Sketcher.Constraint("DistanceY", -1, 1, 0, 3, Q("8 mm")))
sketch17.addConstraint(Sketcher.Constraint("DistanceX", -1, 1, 1, 3, Q("22 mm")))
pocket11 = body.newObject("PartDesign::Pocket", "Pocket010")
pocket11.Profile = sketch17
pocket11.Length = 10

sketch18 = body.newObject("Sketcher::SketchObject", "Sketch017")
sketch18.AttachmentSupport = (doc.getObject("XY_Plane"), [""])
sketch18.MapMode = "FlatFace"
add_polygon(sketch18, [(24.001475, -51.1), (24.001475, -52.9), (20.001475, -52.9), (20.001475, -51.1)])
add_polygon(sketch18, [(-12.001475, -51.1), (-12.001475, -52.9), (-16.001475, -52.9), (-16.001475, -51.1)])
sketch18.addConstraint(Sketcher.Constraint("Vertical", 0))
sketch18.addConstraint(Sketcher.Constraint("Horizontal", 1))
sketch18.addConstraint(Sketcher.Constraint("Vertical", 2))
sketch18.addConstraint(Sketcher.Constraint("Horizontal", 3))
sketch18.addConstraint(Sketcher.Constraint("Vertical", 4))
sketch18.addConstraint(Sketcher.Constraint("Horizontal", 5))
sketch18.addConstraint(Sketcher.Constraint("Vertical", 6))
sketch18.addConstraint(Sketcher.Constraint("Horizontal", 7))
sketch18.addConstraint(Sketcher.Constraint("Horizontal", 1, 2, 4, 2))
sketch18.addConstraint(Sketcher.Constraint("Horizontal", 3, 2, 6, 2))
sketch18.addConstraint(Sketcher.Constraint("Equal", 3, 5))
sketch18.addConstraint(Sketcher.Constraint("DistanceX", 1, 2, 1, 1, Q("4 mm")))
sketch18.addConstraint(Sketcher.Constraint("DistanceY", 0, 2, 0, 1, Q("1.8 mm")))
sketch18.addConstraint(Sketcher.Constraint("DistanceY", 0, 2, -1, 1, Q("52.9 mm")))
sketch18.addConstraint(Sketcher.Constraint("DistanceX", 4, 2, 1, 2, Q("32.002951 mm")))
sketch18.addConstraint(Sketcher.Constraint("DistanceX", -1, 1, 0, 2, Q("24.001475 mm")))
pocket12 = body.newObject("PartDesign::Pocket", "Pocket011")
pocket12.Profile = sketch18
pocket12.Length = 10.2
pocket12.Reversed = True

sketch19 = body.newObject("Sketcher::SketchObject", "Sketch018")
sketch19.AttachmentSupport = (doc.getObject("XY_Plane"), [""])
sketch19.MapMode = "FlatFace"
sketch19.AttachmentOffset = App.Placement(V(0, 0, 16), App.Rotation())
add_polygon(sketch19, [(-6, -28), (-6, -41), (14, -41), (14, -28)])
sketch19.addConstraint(Sketcher.Constraint("Vertical", 0))
sketch19.addConstraint(Sketcher.Constraint("Horizontal", 1))
sketch19.addConstraint(Sketcher.Constraint("Vertical", 2))
sketch19.addConstraint(Sketcher.Constraint("Horizontal", 3))
sketch19.addConstraint(Sketcher.Constraint("DistanceX", 1, 1, 1, 2, Q("20 mm")))
sketch19.addConstraint(Sketcher.Constraint("DistanceY", 0, 2, 0, 1, Q("13 mm")))
sketch19.addConstraint(Sketcher.Constraint("DistanceX", 0, 2, -1, 1, Q("6 mm")))
sketch19.addConstraint(Sketcher.Constraint("DistanceY", 0, 2, -1, 1, Q("41 mm")))
pocket13 = body.newObject("PartDesign::Pocket", "Pocket012")
pocket13.Profile = sketch19
pocket13.Length = 5

doc.recompute()
